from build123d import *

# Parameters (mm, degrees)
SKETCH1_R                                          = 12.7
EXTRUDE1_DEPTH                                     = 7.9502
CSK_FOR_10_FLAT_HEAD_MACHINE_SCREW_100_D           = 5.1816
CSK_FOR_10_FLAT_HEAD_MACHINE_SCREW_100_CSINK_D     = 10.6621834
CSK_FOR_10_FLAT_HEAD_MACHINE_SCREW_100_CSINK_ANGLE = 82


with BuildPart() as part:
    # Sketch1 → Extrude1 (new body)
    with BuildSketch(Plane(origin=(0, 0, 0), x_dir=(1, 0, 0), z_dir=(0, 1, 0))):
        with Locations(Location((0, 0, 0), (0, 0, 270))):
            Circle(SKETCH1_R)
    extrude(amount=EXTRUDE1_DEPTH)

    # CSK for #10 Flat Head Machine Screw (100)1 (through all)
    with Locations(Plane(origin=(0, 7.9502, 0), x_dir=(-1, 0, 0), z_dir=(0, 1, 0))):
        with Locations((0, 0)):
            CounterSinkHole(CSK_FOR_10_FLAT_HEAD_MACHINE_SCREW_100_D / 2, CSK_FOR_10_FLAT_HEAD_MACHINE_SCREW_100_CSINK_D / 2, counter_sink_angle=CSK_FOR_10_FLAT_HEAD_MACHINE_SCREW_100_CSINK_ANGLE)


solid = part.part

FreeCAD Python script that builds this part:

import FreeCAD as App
import Part
import Sketcher
from FreeCAD import Vector
Q = App.Units.Quantity

doc = App.newDocument("Part")
body = doc.addObject("PartDesign::Body", "Body")

sketch1 = body.newObject("Sketcher::SketchObject", "Sketch")
sketch1.AttachmentSupport = (doc.getObject("XZ_Plane"), [""])
sketch1.MapMode = "FlatFace"
sketch1.addGeometry(Part.Circle(Vector(0, 0, 0), Vector(0, 0, 1), 12.7), False)
sketch1.addConstraint(Sketcher.Constraint("Coincident", 0, 3, -1, 1))
sketch1.addConstraint(Sketcher.Constraint("Diameter", 0, Q("1 in")))
pad1 = body.newObject("PartDesign::Pad", "Pad")
pad1.Profile = sketch1
pad1.Length = Q("0.313 in")
pad1.Reversed = True

sketch2 = body.newObject("Sketcher::SketchObject", "Sketch001")
sketch2.AttachmentSupport = (doc.getObject("XZ_Plane"), [""])
sketch2.MapMode = "FlatFace"
sketch2.AttachmentOffset = App.Placement(Vector(0, 0, -0.313 * 25.4), App.Rotation())
sketch2.addGeometry(Part.Circle(Vector(0, 0, 0), Vector(0, 0, 1), 2.5908), False)
sketch2.addConstraint(Sketcher.Constraint("Coincident", 0, 3, -1, 1))
sketch2.addConstraint(Sketcher.Constraint("Diameter", 0, Q("0.204 in")))
doc.recompute()
hole = body.newObject("PartDesign::Hole", "Hole")
hole.Profile = sketch2
hole.ThreadType = "None"
hole.Diameter = Q("0.204 in")
hole.DepthType = "ThroughAll"
hole.HoleCutType = "Countersink"
hole.HoleCutDiameter = 10.662183
hole.HoleCutCountersinkAngle = 82
hole.Reversed = True

doc.recompute()
